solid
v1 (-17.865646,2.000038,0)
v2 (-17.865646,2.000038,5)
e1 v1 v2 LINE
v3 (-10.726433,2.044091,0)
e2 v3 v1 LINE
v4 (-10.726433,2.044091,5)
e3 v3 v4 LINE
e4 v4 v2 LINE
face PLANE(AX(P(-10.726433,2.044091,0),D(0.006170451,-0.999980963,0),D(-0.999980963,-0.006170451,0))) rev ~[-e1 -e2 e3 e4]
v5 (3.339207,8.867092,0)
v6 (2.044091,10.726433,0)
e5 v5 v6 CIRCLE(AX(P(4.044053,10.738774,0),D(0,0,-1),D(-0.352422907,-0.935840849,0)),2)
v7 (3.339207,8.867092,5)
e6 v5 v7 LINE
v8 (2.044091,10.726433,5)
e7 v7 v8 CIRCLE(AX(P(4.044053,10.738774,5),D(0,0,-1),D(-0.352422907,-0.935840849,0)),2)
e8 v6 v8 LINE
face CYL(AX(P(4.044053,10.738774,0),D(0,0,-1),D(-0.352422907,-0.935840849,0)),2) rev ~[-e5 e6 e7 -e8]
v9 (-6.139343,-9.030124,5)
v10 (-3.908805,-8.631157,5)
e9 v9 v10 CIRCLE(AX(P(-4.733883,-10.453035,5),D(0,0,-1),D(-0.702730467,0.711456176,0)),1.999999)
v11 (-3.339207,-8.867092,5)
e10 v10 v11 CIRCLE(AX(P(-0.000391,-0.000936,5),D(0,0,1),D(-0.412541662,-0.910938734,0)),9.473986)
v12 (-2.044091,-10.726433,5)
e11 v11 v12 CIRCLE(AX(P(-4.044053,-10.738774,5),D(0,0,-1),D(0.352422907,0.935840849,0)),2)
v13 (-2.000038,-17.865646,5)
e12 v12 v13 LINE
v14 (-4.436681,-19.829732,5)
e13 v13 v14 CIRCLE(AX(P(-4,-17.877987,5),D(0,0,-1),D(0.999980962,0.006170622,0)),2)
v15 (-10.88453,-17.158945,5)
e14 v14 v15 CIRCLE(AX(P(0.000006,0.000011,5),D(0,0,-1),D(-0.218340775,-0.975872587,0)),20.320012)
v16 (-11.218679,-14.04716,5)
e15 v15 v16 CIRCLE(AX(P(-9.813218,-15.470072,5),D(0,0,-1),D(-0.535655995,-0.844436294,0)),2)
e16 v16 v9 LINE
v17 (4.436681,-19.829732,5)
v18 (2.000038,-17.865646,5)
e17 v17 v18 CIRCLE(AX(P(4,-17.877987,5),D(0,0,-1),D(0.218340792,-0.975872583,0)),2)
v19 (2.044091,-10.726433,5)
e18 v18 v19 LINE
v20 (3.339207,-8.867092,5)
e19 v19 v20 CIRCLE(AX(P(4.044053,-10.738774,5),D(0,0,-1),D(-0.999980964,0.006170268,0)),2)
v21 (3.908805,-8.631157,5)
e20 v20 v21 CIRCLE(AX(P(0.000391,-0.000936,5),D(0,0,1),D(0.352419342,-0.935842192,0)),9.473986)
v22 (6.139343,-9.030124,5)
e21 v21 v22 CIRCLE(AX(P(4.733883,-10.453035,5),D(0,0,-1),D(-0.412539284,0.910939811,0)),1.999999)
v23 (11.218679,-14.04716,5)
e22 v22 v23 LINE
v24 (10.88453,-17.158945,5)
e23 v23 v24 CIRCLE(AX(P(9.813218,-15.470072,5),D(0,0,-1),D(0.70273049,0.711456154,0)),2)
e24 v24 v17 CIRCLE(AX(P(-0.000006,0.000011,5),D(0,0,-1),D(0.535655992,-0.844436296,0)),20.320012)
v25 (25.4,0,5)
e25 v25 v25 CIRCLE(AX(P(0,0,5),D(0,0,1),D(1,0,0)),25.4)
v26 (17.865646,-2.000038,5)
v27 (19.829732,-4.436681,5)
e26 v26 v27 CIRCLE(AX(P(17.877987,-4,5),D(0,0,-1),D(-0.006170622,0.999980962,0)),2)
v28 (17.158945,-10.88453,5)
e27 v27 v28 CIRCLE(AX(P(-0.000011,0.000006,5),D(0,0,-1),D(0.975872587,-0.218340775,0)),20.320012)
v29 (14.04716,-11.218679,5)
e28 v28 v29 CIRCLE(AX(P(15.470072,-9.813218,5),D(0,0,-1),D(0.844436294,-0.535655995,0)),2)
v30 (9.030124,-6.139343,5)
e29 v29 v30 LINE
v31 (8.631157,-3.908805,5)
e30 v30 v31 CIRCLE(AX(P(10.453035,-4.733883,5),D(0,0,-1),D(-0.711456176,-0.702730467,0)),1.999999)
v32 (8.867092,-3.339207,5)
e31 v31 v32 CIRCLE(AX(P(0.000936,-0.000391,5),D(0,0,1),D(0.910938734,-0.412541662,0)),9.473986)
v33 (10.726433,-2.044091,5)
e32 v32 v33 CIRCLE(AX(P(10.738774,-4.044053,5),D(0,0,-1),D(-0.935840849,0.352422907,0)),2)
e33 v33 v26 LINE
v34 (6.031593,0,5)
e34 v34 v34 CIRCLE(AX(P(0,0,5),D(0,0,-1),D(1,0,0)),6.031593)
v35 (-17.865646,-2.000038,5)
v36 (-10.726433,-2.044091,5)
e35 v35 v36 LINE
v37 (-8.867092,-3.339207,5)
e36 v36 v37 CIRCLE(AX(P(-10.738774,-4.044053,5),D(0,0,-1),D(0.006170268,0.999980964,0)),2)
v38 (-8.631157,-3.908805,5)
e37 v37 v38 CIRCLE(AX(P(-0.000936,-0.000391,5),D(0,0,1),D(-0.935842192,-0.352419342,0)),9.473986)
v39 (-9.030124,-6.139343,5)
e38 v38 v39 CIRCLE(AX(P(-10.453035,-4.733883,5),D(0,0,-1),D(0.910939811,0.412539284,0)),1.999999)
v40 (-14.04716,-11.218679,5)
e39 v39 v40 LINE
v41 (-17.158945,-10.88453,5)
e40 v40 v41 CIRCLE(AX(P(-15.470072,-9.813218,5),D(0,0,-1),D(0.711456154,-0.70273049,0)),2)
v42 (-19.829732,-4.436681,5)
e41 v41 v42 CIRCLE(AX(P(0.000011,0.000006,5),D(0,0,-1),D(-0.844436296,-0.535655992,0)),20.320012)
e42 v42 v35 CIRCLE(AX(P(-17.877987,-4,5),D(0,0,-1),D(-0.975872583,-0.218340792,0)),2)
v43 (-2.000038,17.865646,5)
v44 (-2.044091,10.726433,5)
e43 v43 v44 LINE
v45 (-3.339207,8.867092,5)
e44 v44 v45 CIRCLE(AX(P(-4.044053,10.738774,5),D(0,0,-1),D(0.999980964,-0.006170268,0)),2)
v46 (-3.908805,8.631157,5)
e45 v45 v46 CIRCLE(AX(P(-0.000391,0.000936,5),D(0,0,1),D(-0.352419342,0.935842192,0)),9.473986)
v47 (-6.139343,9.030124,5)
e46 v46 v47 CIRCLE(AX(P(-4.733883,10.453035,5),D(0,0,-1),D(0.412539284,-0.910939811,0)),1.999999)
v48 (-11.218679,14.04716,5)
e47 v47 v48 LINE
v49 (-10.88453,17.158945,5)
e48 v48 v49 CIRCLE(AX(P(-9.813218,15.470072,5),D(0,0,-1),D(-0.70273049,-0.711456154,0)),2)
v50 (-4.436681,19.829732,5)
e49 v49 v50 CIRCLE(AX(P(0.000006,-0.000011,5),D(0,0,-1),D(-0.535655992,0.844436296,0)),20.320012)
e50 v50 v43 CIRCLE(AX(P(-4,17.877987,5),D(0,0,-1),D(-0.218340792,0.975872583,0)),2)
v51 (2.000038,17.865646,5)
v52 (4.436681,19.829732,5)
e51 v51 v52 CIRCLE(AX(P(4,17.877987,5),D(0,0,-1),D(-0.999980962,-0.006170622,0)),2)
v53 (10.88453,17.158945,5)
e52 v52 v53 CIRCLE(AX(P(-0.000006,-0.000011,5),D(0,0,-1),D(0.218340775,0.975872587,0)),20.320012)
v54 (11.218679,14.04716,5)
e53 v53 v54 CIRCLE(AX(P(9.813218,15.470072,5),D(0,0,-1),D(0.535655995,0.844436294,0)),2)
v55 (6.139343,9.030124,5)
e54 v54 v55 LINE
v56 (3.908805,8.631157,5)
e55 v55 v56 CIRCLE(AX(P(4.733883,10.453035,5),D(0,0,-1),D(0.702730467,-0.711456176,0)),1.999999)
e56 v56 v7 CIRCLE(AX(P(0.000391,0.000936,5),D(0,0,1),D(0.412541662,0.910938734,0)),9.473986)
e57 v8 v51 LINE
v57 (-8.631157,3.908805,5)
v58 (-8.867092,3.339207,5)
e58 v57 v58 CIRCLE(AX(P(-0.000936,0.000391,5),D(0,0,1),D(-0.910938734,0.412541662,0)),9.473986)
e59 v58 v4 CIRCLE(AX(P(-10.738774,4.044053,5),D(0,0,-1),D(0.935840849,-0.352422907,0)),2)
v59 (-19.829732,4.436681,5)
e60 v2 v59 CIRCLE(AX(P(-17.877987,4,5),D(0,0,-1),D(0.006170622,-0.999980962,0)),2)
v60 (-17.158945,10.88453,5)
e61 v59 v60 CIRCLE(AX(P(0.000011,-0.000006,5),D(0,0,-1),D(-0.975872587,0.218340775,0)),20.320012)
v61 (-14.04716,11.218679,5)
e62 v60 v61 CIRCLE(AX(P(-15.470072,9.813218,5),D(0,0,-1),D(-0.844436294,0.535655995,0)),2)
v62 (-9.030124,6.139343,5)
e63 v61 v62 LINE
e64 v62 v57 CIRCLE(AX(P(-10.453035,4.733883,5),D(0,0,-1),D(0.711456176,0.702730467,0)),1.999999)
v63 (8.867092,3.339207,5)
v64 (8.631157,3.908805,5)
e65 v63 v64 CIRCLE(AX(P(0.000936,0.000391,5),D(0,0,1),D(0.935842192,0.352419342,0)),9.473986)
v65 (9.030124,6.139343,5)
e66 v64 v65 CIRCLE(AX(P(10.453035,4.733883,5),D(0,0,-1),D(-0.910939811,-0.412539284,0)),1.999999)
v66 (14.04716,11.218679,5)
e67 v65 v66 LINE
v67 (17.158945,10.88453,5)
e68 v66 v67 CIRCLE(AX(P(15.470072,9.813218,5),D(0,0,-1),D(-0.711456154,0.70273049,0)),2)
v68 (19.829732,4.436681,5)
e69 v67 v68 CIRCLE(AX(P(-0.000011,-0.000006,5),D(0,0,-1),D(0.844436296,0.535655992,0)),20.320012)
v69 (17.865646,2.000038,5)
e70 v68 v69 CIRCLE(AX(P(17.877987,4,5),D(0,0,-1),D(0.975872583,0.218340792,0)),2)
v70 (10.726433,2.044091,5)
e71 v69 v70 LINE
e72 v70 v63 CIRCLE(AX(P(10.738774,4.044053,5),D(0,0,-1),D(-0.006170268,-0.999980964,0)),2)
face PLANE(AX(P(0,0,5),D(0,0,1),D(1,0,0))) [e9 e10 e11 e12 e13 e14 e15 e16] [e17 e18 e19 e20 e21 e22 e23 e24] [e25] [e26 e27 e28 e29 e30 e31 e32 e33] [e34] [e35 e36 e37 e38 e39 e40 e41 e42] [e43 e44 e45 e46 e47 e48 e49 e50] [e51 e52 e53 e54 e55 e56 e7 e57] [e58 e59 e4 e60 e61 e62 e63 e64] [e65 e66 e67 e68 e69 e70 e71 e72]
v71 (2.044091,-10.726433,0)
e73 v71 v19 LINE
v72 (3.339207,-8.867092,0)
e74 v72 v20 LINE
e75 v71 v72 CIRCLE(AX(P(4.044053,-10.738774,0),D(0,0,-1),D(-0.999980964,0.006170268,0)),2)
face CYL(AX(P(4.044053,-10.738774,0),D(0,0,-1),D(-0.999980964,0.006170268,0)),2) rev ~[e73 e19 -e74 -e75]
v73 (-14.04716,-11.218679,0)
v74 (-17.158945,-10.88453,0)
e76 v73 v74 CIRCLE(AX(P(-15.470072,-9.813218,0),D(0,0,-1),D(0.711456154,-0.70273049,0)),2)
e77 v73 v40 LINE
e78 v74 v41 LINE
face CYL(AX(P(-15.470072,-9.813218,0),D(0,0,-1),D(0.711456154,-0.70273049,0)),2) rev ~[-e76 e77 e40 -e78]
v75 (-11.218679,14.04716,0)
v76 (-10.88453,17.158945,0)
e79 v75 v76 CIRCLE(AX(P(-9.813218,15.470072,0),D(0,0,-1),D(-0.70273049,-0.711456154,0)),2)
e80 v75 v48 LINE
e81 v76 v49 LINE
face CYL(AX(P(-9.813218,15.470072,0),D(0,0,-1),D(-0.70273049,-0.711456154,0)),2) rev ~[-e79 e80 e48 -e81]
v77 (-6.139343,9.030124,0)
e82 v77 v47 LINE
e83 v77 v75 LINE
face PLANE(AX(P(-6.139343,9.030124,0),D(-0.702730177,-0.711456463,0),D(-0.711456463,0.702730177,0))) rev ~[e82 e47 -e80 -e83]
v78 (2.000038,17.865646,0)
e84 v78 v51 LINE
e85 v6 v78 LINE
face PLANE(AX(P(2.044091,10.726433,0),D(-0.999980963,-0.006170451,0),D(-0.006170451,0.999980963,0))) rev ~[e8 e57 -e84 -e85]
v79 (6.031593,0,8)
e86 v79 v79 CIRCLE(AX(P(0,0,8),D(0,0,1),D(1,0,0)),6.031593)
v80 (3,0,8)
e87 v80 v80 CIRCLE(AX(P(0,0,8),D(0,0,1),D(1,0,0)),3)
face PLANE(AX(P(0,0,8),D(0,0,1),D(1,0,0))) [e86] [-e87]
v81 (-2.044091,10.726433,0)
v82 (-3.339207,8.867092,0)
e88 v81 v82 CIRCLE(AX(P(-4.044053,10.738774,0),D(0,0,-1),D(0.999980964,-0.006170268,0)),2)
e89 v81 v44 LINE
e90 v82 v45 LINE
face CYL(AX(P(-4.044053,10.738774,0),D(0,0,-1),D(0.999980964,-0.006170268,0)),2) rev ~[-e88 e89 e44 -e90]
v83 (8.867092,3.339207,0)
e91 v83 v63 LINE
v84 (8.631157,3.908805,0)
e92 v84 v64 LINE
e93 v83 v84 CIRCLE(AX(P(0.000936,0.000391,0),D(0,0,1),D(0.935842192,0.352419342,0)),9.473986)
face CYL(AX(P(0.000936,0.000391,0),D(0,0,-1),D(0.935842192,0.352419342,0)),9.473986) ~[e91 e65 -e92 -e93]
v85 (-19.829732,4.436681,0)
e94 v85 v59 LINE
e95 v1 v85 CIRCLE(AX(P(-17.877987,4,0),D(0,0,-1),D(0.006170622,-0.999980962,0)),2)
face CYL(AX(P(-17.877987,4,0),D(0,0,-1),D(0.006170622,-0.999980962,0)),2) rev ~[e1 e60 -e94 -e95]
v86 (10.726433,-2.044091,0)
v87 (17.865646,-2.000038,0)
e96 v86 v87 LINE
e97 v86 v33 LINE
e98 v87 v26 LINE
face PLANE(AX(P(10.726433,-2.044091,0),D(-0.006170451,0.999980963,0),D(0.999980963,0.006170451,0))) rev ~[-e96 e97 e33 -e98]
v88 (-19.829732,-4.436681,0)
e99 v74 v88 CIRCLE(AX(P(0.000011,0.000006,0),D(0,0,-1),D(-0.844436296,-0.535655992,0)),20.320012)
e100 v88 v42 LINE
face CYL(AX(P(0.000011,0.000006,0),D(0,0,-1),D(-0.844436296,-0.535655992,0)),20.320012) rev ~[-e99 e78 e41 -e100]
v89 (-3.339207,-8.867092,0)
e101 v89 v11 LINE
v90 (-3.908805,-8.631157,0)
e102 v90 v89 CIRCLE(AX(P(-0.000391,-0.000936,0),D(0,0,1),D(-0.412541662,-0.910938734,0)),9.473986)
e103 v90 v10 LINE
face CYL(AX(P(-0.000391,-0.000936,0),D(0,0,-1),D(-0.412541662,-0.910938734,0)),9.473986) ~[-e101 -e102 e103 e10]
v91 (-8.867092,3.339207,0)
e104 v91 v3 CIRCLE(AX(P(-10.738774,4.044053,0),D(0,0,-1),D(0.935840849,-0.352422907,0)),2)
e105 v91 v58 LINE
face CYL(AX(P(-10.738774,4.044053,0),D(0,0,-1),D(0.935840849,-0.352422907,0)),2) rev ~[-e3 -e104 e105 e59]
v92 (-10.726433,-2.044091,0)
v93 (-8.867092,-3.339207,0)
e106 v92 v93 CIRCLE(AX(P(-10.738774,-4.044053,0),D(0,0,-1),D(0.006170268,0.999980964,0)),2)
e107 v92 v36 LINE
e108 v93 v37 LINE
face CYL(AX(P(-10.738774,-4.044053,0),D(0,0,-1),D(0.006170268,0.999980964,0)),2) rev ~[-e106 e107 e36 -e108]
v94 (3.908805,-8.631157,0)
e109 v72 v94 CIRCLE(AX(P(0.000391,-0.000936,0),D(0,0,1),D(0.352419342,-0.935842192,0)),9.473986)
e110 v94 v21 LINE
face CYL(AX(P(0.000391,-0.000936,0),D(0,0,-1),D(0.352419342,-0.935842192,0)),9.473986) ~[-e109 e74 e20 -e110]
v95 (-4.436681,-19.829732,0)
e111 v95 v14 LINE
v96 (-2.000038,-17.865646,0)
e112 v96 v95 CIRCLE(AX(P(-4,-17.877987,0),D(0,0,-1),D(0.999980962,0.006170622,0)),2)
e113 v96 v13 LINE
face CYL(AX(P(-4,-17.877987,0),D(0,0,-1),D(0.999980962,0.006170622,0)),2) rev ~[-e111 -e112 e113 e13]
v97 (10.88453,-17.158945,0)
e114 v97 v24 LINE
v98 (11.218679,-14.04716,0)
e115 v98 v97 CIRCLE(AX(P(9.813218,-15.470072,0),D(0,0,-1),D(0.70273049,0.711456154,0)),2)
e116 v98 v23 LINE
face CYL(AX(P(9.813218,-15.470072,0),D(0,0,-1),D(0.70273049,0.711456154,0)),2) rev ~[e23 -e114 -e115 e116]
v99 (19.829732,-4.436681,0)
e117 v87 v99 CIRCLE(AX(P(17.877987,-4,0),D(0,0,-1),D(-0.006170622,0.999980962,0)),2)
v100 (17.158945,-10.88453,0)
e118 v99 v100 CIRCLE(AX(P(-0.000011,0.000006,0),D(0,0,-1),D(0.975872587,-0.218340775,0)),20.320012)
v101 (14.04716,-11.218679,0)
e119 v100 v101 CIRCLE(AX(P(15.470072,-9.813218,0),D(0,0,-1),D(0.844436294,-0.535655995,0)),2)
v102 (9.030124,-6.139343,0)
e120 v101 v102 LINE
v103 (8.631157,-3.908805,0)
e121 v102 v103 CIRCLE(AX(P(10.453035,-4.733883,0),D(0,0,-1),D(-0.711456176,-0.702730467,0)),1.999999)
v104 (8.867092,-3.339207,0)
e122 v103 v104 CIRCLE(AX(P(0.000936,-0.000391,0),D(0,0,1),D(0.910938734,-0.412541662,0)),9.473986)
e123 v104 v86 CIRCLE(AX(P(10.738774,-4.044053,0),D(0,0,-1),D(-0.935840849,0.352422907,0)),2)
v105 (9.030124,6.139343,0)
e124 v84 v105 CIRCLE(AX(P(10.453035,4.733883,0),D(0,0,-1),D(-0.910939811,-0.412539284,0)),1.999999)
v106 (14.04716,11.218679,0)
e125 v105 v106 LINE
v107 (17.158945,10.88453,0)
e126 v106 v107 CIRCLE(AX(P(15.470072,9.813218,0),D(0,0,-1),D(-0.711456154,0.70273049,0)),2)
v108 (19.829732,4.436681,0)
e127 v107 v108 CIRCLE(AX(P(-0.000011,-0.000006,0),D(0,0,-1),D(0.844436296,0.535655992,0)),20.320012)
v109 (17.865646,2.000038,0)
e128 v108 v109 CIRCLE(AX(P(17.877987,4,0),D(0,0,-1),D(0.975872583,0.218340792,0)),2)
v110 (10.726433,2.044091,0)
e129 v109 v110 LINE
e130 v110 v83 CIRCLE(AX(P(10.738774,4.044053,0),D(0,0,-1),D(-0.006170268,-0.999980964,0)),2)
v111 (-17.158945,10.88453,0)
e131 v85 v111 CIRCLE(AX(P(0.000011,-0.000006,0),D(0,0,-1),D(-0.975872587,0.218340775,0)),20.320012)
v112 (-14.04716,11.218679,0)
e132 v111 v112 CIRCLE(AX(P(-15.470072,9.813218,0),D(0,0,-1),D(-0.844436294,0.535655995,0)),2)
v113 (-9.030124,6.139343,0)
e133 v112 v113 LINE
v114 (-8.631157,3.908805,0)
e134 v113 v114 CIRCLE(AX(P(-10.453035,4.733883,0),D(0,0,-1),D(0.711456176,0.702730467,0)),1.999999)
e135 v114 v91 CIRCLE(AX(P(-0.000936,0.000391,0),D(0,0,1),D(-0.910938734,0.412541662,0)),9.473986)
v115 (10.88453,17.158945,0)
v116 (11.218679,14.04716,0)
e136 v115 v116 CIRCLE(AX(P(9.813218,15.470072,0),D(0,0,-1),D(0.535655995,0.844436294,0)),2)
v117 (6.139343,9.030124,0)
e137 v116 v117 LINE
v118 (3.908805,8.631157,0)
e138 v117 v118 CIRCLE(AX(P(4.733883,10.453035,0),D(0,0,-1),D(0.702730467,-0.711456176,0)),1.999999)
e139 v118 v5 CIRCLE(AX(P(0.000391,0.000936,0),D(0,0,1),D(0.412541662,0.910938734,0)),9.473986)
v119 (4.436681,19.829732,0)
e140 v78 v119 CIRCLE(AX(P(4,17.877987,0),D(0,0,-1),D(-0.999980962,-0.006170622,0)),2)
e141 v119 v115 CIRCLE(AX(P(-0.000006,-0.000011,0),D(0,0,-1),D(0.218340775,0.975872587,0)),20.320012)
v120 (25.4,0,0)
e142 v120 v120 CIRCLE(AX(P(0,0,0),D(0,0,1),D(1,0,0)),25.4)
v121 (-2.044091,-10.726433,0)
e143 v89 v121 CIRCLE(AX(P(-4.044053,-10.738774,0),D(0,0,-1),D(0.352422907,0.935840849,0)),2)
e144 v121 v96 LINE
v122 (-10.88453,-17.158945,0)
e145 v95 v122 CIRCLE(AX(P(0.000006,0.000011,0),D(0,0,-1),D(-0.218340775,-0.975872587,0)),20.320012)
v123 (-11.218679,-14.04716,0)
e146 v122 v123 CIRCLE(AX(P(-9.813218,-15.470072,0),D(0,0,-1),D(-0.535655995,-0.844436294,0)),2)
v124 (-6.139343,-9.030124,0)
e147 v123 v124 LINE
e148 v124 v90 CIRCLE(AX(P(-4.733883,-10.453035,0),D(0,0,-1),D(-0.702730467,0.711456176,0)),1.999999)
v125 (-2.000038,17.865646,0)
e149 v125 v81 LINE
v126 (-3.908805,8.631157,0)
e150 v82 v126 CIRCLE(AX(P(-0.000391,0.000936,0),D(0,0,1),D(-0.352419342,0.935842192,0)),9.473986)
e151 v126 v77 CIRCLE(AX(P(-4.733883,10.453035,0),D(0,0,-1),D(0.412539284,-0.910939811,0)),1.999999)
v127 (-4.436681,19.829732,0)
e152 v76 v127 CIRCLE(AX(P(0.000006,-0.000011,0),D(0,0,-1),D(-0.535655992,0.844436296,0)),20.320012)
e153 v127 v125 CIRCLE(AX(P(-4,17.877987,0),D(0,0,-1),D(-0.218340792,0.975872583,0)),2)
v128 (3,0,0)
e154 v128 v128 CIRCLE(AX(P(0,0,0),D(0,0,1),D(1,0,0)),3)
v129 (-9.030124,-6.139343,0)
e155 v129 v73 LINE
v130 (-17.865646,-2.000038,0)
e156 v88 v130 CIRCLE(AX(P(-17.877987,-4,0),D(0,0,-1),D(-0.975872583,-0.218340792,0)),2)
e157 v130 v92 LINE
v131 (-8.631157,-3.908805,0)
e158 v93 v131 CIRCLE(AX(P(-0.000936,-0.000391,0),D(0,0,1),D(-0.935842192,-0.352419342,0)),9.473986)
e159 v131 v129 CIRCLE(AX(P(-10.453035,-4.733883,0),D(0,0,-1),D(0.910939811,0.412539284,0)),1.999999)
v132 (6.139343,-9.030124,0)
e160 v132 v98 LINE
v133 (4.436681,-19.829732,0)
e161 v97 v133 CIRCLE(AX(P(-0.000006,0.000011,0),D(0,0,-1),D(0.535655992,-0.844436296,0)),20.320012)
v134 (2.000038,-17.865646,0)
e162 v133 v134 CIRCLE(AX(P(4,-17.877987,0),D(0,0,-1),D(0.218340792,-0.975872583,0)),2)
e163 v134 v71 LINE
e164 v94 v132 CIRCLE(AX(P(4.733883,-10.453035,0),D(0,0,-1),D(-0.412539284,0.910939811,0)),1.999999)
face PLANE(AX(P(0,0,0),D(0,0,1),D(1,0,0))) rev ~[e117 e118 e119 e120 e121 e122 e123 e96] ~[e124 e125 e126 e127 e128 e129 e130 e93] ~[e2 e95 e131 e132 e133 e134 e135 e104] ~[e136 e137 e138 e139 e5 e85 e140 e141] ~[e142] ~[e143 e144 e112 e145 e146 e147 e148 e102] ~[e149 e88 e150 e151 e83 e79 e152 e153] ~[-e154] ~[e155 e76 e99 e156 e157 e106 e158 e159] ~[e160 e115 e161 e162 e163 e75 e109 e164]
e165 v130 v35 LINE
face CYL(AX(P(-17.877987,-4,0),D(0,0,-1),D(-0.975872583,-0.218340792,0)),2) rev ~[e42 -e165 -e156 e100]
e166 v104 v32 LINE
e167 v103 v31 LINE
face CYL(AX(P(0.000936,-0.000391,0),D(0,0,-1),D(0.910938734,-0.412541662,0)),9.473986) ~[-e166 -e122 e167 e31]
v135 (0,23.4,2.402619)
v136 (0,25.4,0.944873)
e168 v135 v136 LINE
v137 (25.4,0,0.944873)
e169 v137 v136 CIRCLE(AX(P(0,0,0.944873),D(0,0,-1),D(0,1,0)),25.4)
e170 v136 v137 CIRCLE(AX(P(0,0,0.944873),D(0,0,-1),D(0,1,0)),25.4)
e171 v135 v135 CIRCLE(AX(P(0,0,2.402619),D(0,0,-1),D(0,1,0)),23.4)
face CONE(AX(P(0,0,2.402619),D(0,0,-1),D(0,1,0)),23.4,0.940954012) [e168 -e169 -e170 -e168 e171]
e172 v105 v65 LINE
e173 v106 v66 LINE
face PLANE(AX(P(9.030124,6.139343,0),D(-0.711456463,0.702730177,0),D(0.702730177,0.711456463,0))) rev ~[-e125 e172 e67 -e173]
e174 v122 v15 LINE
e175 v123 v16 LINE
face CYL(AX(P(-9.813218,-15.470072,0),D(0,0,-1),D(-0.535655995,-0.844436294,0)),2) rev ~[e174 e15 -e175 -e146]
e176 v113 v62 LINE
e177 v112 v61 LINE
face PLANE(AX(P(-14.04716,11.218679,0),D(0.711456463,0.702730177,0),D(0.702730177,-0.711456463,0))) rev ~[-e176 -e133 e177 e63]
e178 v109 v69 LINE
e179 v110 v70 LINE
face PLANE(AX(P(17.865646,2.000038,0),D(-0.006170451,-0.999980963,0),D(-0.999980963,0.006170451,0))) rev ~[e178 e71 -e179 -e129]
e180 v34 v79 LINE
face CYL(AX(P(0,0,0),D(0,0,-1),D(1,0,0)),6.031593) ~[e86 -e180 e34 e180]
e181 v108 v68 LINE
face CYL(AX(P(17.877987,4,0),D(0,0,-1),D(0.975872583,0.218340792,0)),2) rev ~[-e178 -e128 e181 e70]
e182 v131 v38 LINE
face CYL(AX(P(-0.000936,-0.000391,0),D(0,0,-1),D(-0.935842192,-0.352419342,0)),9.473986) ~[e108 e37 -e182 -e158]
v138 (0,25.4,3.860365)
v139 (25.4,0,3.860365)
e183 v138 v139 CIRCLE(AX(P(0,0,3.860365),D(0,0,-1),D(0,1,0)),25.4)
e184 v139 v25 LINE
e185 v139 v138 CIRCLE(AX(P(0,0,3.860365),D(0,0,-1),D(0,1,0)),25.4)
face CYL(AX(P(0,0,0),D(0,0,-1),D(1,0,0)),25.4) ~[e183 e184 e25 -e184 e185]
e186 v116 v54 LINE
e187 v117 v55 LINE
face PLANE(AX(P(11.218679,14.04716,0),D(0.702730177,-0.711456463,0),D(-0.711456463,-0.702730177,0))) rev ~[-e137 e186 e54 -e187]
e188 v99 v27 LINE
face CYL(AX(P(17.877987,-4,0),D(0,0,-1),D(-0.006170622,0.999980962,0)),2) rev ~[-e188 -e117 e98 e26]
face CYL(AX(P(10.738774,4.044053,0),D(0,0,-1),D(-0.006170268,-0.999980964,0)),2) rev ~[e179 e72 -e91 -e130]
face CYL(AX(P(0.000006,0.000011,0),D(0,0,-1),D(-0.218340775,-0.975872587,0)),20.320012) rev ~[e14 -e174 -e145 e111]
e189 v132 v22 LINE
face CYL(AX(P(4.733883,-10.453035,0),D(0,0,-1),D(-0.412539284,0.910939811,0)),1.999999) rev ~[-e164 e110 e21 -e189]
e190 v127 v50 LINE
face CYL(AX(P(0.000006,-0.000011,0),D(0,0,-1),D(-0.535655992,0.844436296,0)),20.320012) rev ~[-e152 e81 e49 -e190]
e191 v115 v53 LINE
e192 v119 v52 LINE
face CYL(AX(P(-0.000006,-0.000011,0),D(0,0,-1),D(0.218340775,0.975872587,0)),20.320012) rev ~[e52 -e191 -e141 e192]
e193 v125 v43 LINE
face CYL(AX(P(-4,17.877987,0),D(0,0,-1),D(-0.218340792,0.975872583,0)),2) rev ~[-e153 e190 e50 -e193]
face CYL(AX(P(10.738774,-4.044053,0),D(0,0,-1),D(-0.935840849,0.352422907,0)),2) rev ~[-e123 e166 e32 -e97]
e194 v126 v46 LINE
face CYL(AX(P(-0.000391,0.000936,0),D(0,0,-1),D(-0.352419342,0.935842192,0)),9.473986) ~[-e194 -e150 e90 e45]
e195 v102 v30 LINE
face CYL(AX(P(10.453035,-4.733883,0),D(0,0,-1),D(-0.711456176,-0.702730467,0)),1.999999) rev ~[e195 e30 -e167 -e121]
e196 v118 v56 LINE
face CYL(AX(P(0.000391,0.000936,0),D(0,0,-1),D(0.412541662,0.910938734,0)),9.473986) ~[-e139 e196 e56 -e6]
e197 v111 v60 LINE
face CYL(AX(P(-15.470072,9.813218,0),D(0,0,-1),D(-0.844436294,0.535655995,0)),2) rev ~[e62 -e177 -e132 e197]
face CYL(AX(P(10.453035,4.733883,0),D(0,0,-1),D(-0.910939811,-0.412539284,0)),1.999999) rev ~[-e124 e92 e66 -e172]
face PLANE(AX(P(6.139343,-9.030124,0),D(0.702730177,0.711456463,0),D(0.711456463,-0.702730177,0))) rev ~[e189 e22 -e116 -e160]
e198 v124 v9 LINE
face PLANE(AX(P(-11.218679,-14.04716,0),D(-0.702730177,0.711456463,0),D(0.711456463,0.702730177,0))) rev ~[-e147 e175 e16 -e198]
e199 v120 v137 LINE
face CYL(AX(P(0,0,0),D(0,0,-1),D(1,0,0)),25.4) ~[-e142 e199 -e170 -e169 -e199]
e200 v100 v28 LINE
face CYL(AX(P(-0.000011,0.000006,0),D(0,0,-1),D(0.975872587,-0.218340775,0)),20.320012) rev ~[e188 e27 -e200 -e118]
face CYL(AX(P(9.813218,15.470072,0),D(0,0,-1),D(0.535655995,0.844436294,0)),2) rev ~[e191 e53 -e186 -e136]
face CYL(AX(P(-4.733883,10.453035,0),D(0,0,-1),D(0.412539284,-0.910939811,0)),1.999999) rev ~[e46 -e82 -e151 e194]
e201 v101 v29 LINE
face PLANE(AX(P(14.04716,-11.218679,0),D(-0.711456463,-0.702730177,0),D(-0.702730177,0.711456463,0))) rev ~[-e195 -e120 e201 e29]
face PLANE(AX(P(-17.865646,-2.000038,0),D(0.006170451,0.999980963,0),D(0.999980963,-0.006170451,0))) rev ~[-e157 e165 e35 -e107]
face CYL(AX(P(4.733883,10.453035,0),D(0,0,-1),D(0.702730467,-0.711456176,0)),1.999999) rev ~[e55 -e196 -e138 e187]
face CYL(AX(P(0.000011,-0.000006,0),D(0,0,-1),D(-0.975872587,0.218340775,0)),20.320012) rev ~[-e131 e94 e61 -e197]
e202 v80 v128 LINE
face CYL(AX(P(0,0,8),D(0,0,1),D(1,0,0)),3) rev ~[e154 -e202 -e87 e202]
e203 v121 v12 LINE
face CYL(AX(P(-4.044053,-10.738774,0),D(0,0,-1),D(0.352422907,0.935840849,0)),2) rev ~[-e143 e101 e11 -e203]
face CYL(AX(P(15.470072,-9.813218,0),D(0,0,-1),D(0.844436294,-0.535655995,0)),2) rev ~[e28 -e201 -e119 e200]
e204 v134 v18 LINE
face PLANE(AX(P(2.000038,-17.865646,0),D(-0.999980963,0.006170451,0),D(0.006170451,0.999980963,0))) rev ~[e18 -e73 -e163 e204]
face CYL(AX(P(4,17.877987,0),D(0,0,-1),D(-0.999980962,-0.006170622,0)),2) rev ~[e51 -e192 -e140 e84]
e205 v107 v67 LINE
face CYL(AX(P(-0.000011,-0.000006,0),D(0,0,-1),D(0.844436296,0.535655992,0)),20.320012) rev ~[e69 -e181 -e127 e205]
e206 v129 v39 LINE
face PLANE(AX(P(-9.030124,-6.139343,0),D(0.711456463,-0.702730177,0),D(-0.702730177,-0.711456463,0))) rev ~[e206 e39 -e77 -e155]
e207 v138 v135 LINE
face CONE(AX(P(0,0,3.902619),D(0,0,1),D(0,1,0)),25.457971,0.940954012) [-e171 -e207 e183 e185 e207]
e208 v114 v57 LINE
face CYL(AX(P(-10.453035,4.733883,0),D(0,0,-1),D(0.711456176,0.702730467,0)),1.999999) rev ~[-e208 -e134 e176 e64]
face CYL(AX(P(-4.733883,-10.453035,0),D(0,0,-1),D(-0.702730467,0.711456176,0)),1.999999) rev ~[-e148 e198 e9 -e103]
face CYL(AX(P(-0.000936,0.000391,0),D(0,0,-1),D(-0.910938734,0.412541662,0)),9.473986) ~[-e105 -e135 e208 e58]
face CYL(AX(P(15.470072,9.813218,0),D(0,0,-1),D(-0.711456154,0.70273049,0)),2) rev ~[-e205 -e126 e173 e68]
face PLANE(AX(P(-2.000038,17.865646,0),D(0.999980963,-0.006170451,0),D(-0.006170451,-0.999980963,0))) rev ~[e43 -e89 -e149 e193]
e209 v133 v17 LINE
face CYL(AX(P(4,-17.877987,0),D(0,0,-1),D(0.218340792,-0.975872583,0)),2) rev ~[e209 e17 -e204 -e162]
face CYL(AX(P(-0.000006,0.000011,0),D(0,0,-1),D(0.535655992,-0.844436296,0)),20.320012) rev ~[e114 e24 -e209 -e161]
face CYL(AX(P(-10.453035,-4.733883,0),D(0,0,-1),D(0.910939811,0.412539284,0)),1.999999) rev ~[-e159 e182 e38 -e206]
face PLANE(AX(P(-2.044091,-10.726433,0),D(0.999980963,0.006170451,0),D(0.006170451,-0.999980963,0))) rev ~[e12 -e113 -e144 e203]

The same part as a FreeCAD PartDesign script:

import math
import FreeCAD as App
import Part
import Sketcher

V = App.Vector
Q = App.Units.Quantity


def add_polygon(sketch, points):
    """Adds a closed chain of lines whose ends are joined by coincident constraints."""
    first, n = sketch.GeometryCount, len(points)
    for a, b in zip(points, points[1:] + points[:1]):
        sketch.addGeometry(Part.LineSegment(App.Vector(*a, 0), App.Vector(*b, 0)), False)
    for i in range(n):
        sketch.addConstraint(Sketcher.Constraint("Coincident", first + i, 2, first + (i + 1) % n, 1))

doc = App.newDocument("Part")
body = doc.addObject("PartDesign::Body", "Body")

# Sketch on XY plane
sketch1 = doc.addObject("Sketcher::SketchObject", "Sketch")
body.addObject(sketch1)
sketch1.AttachmentSupport = (doc.XY_Plane, [""])
sketch1.MapMode = "FlatFace"
sketch1.addGeometry([
    Part.Circle(V(0, 0, 0), V(0, 0, 1), 25.4),  # 0
    Part.ArcOfCircle(Part.Circle(V(0.000006, 0.000011, 0), V(0, 0, 1), 20.320012), math.radians(-122.38841), math.radians(-102.611597)),  # 1
    Part.ArcOfCircle(Part.Circle(V(-9.813218, -15.470072, 0), V(0, 0, 1), 2), math.radians(134.646484), math.radians(237.61159)),  # 2
    Part.LineSegment(V(-11.218679, -14.04716, 0), V(-6.139343, -9.030124, 0)),  # 3
    Part.ArcOfCircle(Part.Circle(V(-4.733883, -10.453035, 0), V(0, 0, 1), 1.999999), math.radians(65.635551), math.radians(134.646482)),  # 4
    Part.ArcOfCircle(Part.Circle(V(-0.000391, -0.000936, 0), V(0, 0, 1), 9.473986), math.radians(-114.364598), math.radians(-110.635364)),  # 5
    Part.ArcOfCircle(Part.Circle(V(-4.044053, -10.738774, 0), V(0, 0, 1), 2), math.radians(0.353533), math.radians(69.364417)),  # 6
    Part.LineSegment(V(-2.044091, -10.726433, 0), V(-2.000038, -17.865646, 0)),  # 7
    Part.ArcOfCircle(Part.Circle(V(-4, -17.877987, 0), V(0, 0, 1), 2), math.radians(-102.611598), math.radians(0.353553)),  # 8
    Part.ArcOfCircle(Part.Circle(V(0.000011, 0.000006, 0), V(0, 0, 1), 20.320012), math.radians(-167.388403), math.radians(-147.61159)),  # 9
    Part.ArcOfCircle(Part.Circle(V(-17.877987, -4, 0), V(0, 0, 1), 2), math.radians(89.646447), math.radians(192.611598)),  # 10
    Part.LineSegment(V(-17.865646, -2.000038, 0), V(-10.726433, -2.044091, 0)),  # 11
    Part.ArcOfCircle(Part.Circle(V(-10.738774, -4.044053, 0), V(0, 0, 1), 2), math.radians(20.635583), math.radians(89.646467)),  # 12
    Part.ArcOfCircle(Part.Circle(V(-0.000936, -0.000391, 0), V(0, 0, 1), 9.473986), math.radians(-159.364636), math.radians(-155.635402)),  # 13
    Part.ArcOfCircle(Part.Circle(V(-10.453035, -4.733883, 0), V(0, 0, 1), 1.999999), math.radians(-44.646482), math.radians(24.364449)),  # 14
    Part.LineSegment(V(-9.030124, -6.139343, 0), V(-14.04716, -11.218679, 0)),  # 15
    Part.ArcOfCircle(Part.Circle(V(-15.470072, -9.813218, 0), V(0, 0, 1), 2), math.radians(-147.61159), math.radians(-44.646484)),  # 16
    Part.ArcOfCircle(Part.Circle(V(-0.000006, 0.000011, 0), V(0, 0, 1), 20.320012), math.radians(-77.388403), math.radians(-57.61159)),  # 17
    Part.ArcOfCircle(Part.Circle(V(4, -17.877987, 0), V(0, 0, 1), 2), math.radians(179.646447), math.radians(282.611598)),  # 18
    Part.LineSegment(V(2.000038, -17.865646, 0), V(2.044091, -10.726433, 0)),  # 19
    Part.ArcOfCircle(Part.Circle(V(4.044053, -10.738774, 0), V(0, 0, 1), 2), math.radians(110.635583), math.radians(179.646467)),  # 20
    Part.ArcOfCircle(Part.Circle(V(0.000391, -0.000936, 0), V(0, 0, 1), 9.473986), math.radians(-69.364636), math.radians(-65.635402)),  # 21
    Part.ArcOfCircle(Part.Circle(V(4.733883, -10.453035, 0), V(0, 0, 1), 1.999999), math.radians(45.353518), math.radians(114.364449)),  # 22
    Part.LineSegment(V(6.139343, -9.030124, 0), V(11.218679, -14.04716, 0)),  # 23
    Part.ArcOfCircle(Part.Circle(V(9.813218, -15.470072, 0), V(0, 0, 1), 2), math.radians(-57.61159), math.radians(45.353516)),  # 24
    Part.ArcOfCircle(Part.Circle(V(-0.000011, 0.000006, 0), V(0, 0, 1), 20.320012), math.radians(-32.38841), math.radians(-12.611597)),  # 25
    Part.ArcOfCircle(Part.Circle(V(15.470072, -9.813218, 0), V(0, 0, 1), 2), math.radians(-135.353516), math.radians(-32.38841)),  # 26
    Part.LineSegment(V(14.04716, -11.218679, 0), V(9.030124, -6.139343, 0)),  # 27
    Part.ArcOfCircle(Part.Circle(V(10.453035, -4.733883, 0), V(0, 0, 1), 1.999999), math.radians(155.635551), math.radians(224.646482)),  # 28
    Part.ArcOfCircle(Part.Circle(V(0.000936, -0.000391, 0), V(0, 0, 1), 9.473986), math.radians(-24.364598), math.radians(-20.635364)),  # 29
    Part.ArcOfCircle(Part.Circle(V(10.738774, -4.044053, 0), V(0, 0, 1), 2), math.radians(90.353533), math.radians(159.364417)),  # 30
    Part.LineSegment(V(10.726433, -2.044091, 0), V(17.865646, -2.000038, 0)),  # 31
    Part.ArcOfCircle(Part.Circle(V(17.877987, -4, 0), V(0, 0, 1), 2), math.radians(-12.611598), math.radians(90.353553)),  # 32
    Part.ArcOfCircle(Part.Circle(V(0.000011, -0.000006, 0), V(0, 0, 1), 20.320012), math.radians(147.61159), math.radians(167.388403)),  # 33
    Part.ArcOfCircle(Part.Circle(V(-15.470072, 9.813218, 0), V(0, 0, 1), 2), math.radians(44.646484), math.radians(147.61159)),  # 34
    Part.LineSegment(V(-14.04716, 11.218679, 0), V(-9.030124, 6.139343, 0)),  # 35
    Part.ArcOfCircle(Part.Circle(V(-10.453035, 4.733883, 0), V(0, 0, 1), 1.999999), math.radians(-24.364449), math.radians(44.646482)),  # 36
    Part.ArcOfCircle(Part.Circle(V(-0.000936, 0.000391, 0), V(0, 0, 1), 9.473986), math.radians(155.635402), math.radians(159.364636)),  # 37
    Part.ArcOfCircle(Part.Circle(V(-10.738774, 4.044053, 0), V(0, 0, 1), 2), math.radians(-89.646467), math.radians(-20.635583)),  # 38
    Part.LineSegment(V(-10.726433, 2.044091, 0), V(-17.865646, 2.000038, 0)),  # 39
    Part.ArcOfCircle(Part.Circle(V(-17.877987, 4, 0), V(0, 0, 1), 2), math.radians(167.388402), math.radians(270.353553)),  # 40
    Part.ArcOfCircle(Part.Circle(V(-9.813218, 15.470072, 0), V(0, 0, 1), 2), math.radians(122.38841), math.radians(225.353516)),  # 41
    Part.ArcOfCircle(Part.Circle(V(0.000006, -0.000011, 0), V(0, 0, 1), 20.320012), math.radians(102.611597), math.radians(122.38841)),  # 42
    Part.ArcOfCircle(Part.Circle(V(-4, 17.877987, 0), V(0, 0, 1), 2), math.radians(-0.353553), math.radians(102.611598)),  # 43
    Part.LineSegment(V(-2.000038, 17.865646, 0), V(-2.044091, 10.726433, 0)),  # 44
    Part.ArcOfCircle(Part.Circle(V(-4.044053, 10.738774, 0), V(0, 0, 1), 2), math.radians(-69.364417), math.radians(-0.353533)),  # 45
    Part.ArcOfCircle(Part.Circle(V(-0.000391, 0.000936, 0), V(0, 0, 1), 9.473986), math.radians(110.635364), math.radians(114.364598)),  # 46
    Part.ArcOfCircle(Part.Circle(V(-4.733883, 10.453035, 0), V(0, 0, 1), 1.999999), math.radians(-134.646482), math.radians(-65.635551)),  # 47
    Part.LineSegment(V(-6.139343, 9.030124, 0), V(-11.218679, 14.04716, 0)),  # 48
    Part.Circle(V(0, 0, 0), V(0, 0, 1), 3.125),  # 49
    Part.ArcOfCircle(Part.Circle(V(-0.000011, -0.000006, 0), V(0, 0, 1), 20.320012), math.radians(12.611597), math.radians(32.38841)),  # 50
    Part.ArcOfCircle(Part.Circle(V(17.877987, 4, 0), V(0, 0, 1), 2), math.radians(-90.353553), math.radians(12.611598)),  # 51
    Part.LineSegment(V(17.865646, 2.000038, 0), V(10.726433, 2.044091, 0)),  # 52
    Part.ArcOfCircle(Part.Circle(V(10.738774, 4.044053, 0), V(0, 0, 1), 2), math.radians(-159.364417), math.radians(-90.353533)),  # 53
    Part.ArcOfCircle(Part.Circle(V(0.000936, 0.000391, 0), V(0, 0, 1), 9.473986), math.radians(20.635364), math.radians(24.364598)),  # 54
    Part.ArcOfCircle(Part.Circle(V(10.453035, 4.733883, 0), V(0, 0, 1), 1.999999), math.radians(135.353518), math.radians(204.364449)),  # 55
    Part.LineSegment(V(9.030124, 6.139343, 0), V(14.04716, 11.218679, 0)),  # 56
    Part.ArcOfCircle(Part.Circle(V(15.470072, 9.813218, 0), V(0, 0, 1), 2), math.radians(32.38841), math.radians(135.353516)),  # 57
    Part.ArcOfCircle(Part.Circle(V(4.044053, 10.738774, 0), V(0, 0, 1), 2), math.radians(-179.646467), math.radians(-110.635583)),  # 58
    Part.LineSegment(V(2.044091, 10.726433, 0), V(2.000038, 17.865646, 0)),  # 59
    Part.ArcOfCircle(Part.Circle(V(4, 17.877987, 0), V(0, 0, 1), 2), math.radians(77.388402), math.radians(180.353553)),  # 60
    Part.ArcOfCircle(Part.Circle(V(-0.000006, -0.000011, 0), V(0, 0, 1), 20.320012), math.radians(57.61159), math.radians(77.388403)),  # 61
    Part.ArcOfCircle(Part.Circle(V(9.813218, 15.470072, 0), V(0, 0, 1), 2), math.radians(-45.353516), math.radians(57.61159)),  # 62
    Part.LineSegment(V(11.218679, 14.04716, 0), V(6.139343, 9.030124, 0)),  # 63
    Part.ArcOfCircle(Part.Circle(V(4.733883, 10.453035, 0), V(0, 0, 1), 1.999999), math.radians(-114.364449), math.radians(-45.353518)),  # 64
    Part.ArcOfCircle(Part.Circle(V(0.000391, 0.000936, 0), V(0, 0, 1), 9.473986), math.radians(65.635402), math.radians(69.364636)),  # 65
], False)
sketch1.addConstraint([
    Sketcher.Constraint("Coincident", 1, 1, 2, 2),
    Sketcher.Constraint("Coincident", 2, 1, 3, 1),
    Sketcher.Constraint("Coincident", 3, 2, 4, 2),
    Sketcher.Constraint("Coincident", 4, 1, 5, 1),
    Sketcher.Constraint("Coincident", 5, 2, 6, 2),
    Sketcher.Constraint("Coincident", 6, 1, 7, 1),
    Sketcher.Constraint("Coincident", 7, 2, 8, 2),
    Sketcher.Constraint("Coincident", 8, 1, 1, 2),
    Sketcher.Constraint("Coincident", 9, 1, 10, 2),
    Sketcher.Constraint("Coincident", 10, 1, 11, 1),
    Sketcher.Constraint("Coincident", 11, 2, 12, 2),
    Sketcher.Constraint("Coincident", 12, 1, 13, 1),
    Sketcher.Constraint("Coincident", 13, 2, 14, 2),
    Sketcher.Constraint("Coincident", 14, 1, 15, 1),
    Sketcher.Constraint("Coincident", 15, 2, 16, 2),
    Sketcher.Constraint("Coincident", 16, 1, 9, 2),
    Sketcher.Constraint("Coincident", 17, 1, 18, 2),
    Sketcher.Constraint("Coincident", 18, 1, 19, 1),
    Sketcher.Constraint("Coincident", 19, 2, 20, 2),
    Sketcher.Constraint("Coincident", 20, 1, 21, 1),
    Sketcher.Constraint("Coincident", 21, 2, 22, 2),
    Sketcher.Constraint("Coincident", 22, 1, 23, 1),
    Sketcher.Constraint("Coincident", 23, 2, 24, 2),
    Sketcher.Constraint("Coincident", 24, 1, 17, 2),
    Sketcher.Constraint("Coincident", 25, 1, 26, 2),
    Sketcher.Constraint("Coincident", 26, 1, 27, 1),
    Sketcher.Constraint("Coincident", 27, 2, 28, 2),
    Sketcher.Constraint("Coincident", 28, 1, 29, 1),
    Sketcher.Constraint("Coincident", 29, 2, 30, 2),
    Sketcher.Constraint("Coincident", 30, 1, 31, 1),
    Sketcher.Constraint("Coincident", 31, 2, 32, 2),
    Sketcher.Constraint("Coincident", 32, 1, 25, 2),
    Sketcher.Constraint("Coincident", 33, 1, 34, 2),
    Sketcher.Constraint("Coincident", 34, 1, 35, 1),
    Sketcher.Constraint("Coincident", 35, 2, 36, 2),
    Sketcher.Constraint("Coincident", 36, 1, 37, 1),
    Sketcher.Constraint("Coincident", 37, 2, 38, 2),
    Sketcher.Constraint("Coincident", 38, 1, 39, 1),
    Sketcher.Constraint("Coincident", 39, 2, 40, 2),
    Sketcher.Constraint("Coincident", 40, 1, 33, 2),
    Sketcher.Constraint("Coincident", 41, 1, 42, 2),
    Sketcher.Constraint("Coincident", 42, 1, 43, 2),
    Sketcher.Constraint("Coincident", 43, 1, 44, 1),
    Sketcher.Constraint("Coincident", 44, 2, 45, 2),
    Sketcher.Constraint("Coincident", 45, 1, 46, 1),
    Sketcher.Constraint("Coincident", 46, 2, 47, 2),
    Sketcher.Constraint("Coincident", 47, 1, 48, 1),
    Sketcher.Constraint("Coincident", 48, 2, 41, 2),
    Sketcher.Constraint("Coincident", 50, 1, 51, 2),
    Sketcher.Constraint("Coincident", 51, 1, 52, 1),
    Sketcher.Constraint("Coincident", 52, 2, 53, 2),
    Sketcher.Constraint("Coincident", 53, 1, 54, 1),
    Sketcher.Constraint("Coincident", 54, 2, 55, 2),
    Sketcher.Constraint("Coincident", 55, 1, 56, 1),
    Sketcher.Constraint("Coincident", 56, 2, 57, 2),
    Sketcher.Constraint("Coincident", 57, 1, 50, 2),
    Sketcher.Constraint("Coincident", 58, 1, 59, 1),
    Sketcher.Constraint("Coincident", 59, 2, 60, 2),
    Sketcher.Constraint("Coincident", 60, 1, 61, 2),
    Sketcher.Constraint("Coincident", 61, 1, 62, 2),
    Sketcher.Constraint("Coincident", 62, 1, 63, 1),
    Sketcher.Constraint("Coincident", 63, 2, 64, 2),
    Sketcher.Constraint("Coincident", 64, 1, 65, 1),
    Sketcher.Constraint("Coincident", 65, 2, 58, 2),
    Sketcher.Constraint("Coincident", 0, 3, -1, 1),
    Sketcher.Constraint("Coincident", 49, 3, -1, 1),
    Sketcher.Constraint("Coincident", 9, 3, 1, 3),
    Sketcher.Constraint("Coincident", 25, 3, 17, 3),
    Sketcher.Constraint("Coincident", 42, 3, 33, 3),
    Sketcher.Constraint("Coincident", 61, 3, 50, 3),
    Sketcher.Constraint("Radius", 2, Q("2 mm")),
    Sketcher.Constraint("Radius", 4, Q("1.999999 mm")),
    Sketcher.Constraint("Radius", 6, Q("2 mm")),
    Sketcher.Constraint("Radius", 8, Q("2 mm")),
    Sketcher.Constraint("Radius", 10, Q("2 mm")),
    Sketcher.Constraint("Radius", 12, Q("2 mm")),
    Sketcher.Constraint("Radius", 14, Q("1.999999 mm")),
    Sketcher.Constraint("Radius", 16, Q("2 mm")),
    Sketcher.Constraint("Radius", 18, Q("2 mm")),
    Sketcher.Constraint("Radius", 20, Q("2 mm")),
    Sketcher.Constraint("Radius", 22, Q("1.999999 mm")),
    Sketcher.Constraint("Radius", 24, Q("2 mm")),
    Sketcher.Constraint("Radius", 26, Q("2 mm")),
    Sketcher.Constraint("Radius", 28, Q("1.999999 mm")),
    Sketcher.Constraint("Radius", 30, Q("2 mm")),
    Sketcher.Constraint("Radius", 32, Q("2 mm")),
    Sketcher.Constraint("Radius", 34, Q("2 mm")),
    Sketcher.Constraint("Radius", 36, Q("1.999999 mm")),
    Sketcher.Constraint("Radius", 38, Q("2 mm")),
    Sketcher.Constraint("Radius", 40, Q("2 mm")),
    Sketcher.Constraint("Radius", 41, Q("2 mm")),
    Sketcher.Constraint("Radius", 43, Q("2 mm")),
    Sketcher.Constraint("Radius", 45, Q("2 mm")),
    Sketcher.Constraint("Radius", 47, Q("1.999999 mm")),
    Sketcher.Constraint("Radius", 51, Q("2 mm")),
    Sketcher.Constraint("Radius", 53, Q("2 mm")),
    Sketcher.Constraint("Radius", 55, Q("1.999999 mm")),
    Sketcher.Constraint("Radius", 57, Q("2 mm")),
    Sketcher.Constraint("Radius", 58, Q("2 mm")),
    Sketcher.Constraint("Radius", 60, Q("2 mm")),
    Sketcher.Constraint("Radius", 62, Q("2 mm")),
    Sketcher.Constraint("Radius", 64, Q("1.999999 mm")),
    Sketcher.Constraint("Diameter", 0, Q("50.8 mm")),
    Sketcher.Constraint("Diameter", 49, Q("6.25 mm")),
    Sketcher.Constraint("DistanceX", 8, 3, -1, 1, Q("4 mm")),
    Sketcher.Constraint("DistanceY", 10, 3, -1, 1, Q("4 mm")),
    Sketcher.Constraint("DistanceX", -1, 1, 18, 3, Q("4 mm")),
    Sketcher.Constraint("DistanceY", 32, 3, -1, 1, Q("4 mm")),
    Sketcher.Constraint("DistanceY", -1, 1, 40, 3, Q("4 mm")),
    Sketcher.Constraint("DistanceX", 43, 3, -1, 1, Q("4 mm")),
    Sketcher.Constraint("DistanceY", -1, 1, 51, 3, Q("4 mm")),
    Sketcher.Constraint("DistanceX", -1, 1, 60, 3, Q("4 mm")),
    Sketcher.Constraint("Radius", 1, Q("20.320012 mm")),
    Sketcher.Constraint("Radius", 9, Q("20.320012 mm")),
    Sketcher.Constraint("Radius", 17, Q("20.320012 mm")),
    Sketcher.Constraint("Radius", 25, Q("20.320012 mm")),
    Sketcher.Constraint("Radius", 33, Q("20.320012 mm")),
    Sketcher.Constraint("Radius", 42, Q("20.320012 mm")),
    Sketcher.Constraint("Radius", 50, Q("20.320012 mm")),
    Sketcher.Constraint("Radius", 61, Q("20.320012 mm")),
    Sketcher.Constraint("Radius", 5, Q("9.473986 mm")),
    Sketcher.Constraint("Radius", 13, Q("9.473986 mm")),
    Sketcher.Constraint("Radius", 21, Q("9.473986 mm")),
    Sketcher.Constraint("Radius", 29, Q("9.473986 mm")),
    Sketcher.Constraint("Radius", 37, Q("9.473986 mm")),
    Sketcher.Constraint("Radius", 46, Q("9.473986 mm")),
    Sketcher.Constraint("Radius", 54, Q("9.473986 mm")),
    Sketcher.Constraint("Radius", 65, Q("9.473986 mm")),
    Sketcher.Constraint("Distance", 3, Q("7.139349 mm")),
    Sketcher.Constraint("Distance", 7, Q("7.139349 mm")),
    Sketcher.Constraint("Distance", 11, Q("7.139349 mm")),
    Sketcher.Constraint("Distance", 15, Q("7.139349 mm")),
    Sketcher.Constraint("Distance", 19, Q("7.139349 mm")),
    Sketcher.Constraint("Distance", 23, Q("7.139349 mm")),
    Sketcher.Constraint("Distance", 27, Q("7.139349 mm")),
    Sketcher.Constraint("Distance", 31, Q("7.139349 mm")),
    Sketcher.Constraint("Distance", 35, Q("7.139349 mm")),
    Sketcher.Constraint("Distance", 39, Q("7.139349 mm")),
    Sketcher.Constraint("Distance", 44, Q("7.139349 mm")),
    Sketcher.Constraint("Distance", 48, Q("7.139349 mm")),
    Sketcher.Constraint("Distance", 52, Q("7.139349 mm")),
    Sketcher.Constraint("Distance", 56, Q("7.139349 mm")),
    Sketcher.Constraint("Distance", 59, Q("7.139349 mm")),
    Sketcher.Constraint("Distance", 63, Q("7.139349 mm")),
    Sketcher.Constraint("DistanceX", 5, 3, -1, 1, Q("0.000391 mm")),
    Sketcher.Constraint("DistanceY", 13, 3, -1, 1, Q("0.000391 mm")),
    Sketcher.Constraint("DistanceX", -1, 1, 21, 3, Q("0.000391 mm")),
    Sketcher.Constraint("DistanceY", 29, 3, -1, 1, Q("0.000391 mm")),
    Sketcher.Constraint("DistanceY", -1, 1, 37, 3, Q("0.000391 mm")),
    Sketcher.Constraint("DistanceX", 46, 3, -1, 1, Q("0.000391 mm")),
    Sketcher.Constraint("DistanceY", -1, 1, 54, 3, Q("0.000391 mm")),
    Sketcher.Constraint("DistanceX", -1, 1, 65, 3, Q("0.000391 mm")),
    Sketcher.Constraint("DistanceX", 1, 1, -1, 1, Q("10.88453 mm")),
    Sketcher.Constraint("DistanceX", 2, 1, -1, 1, Q("11.218679 mm")),
    Sketcher.Constraint("DistanceY", 2, 1, -1, 1, Q("14.04716 mm")),
    Sketcher.Constraint("DistanceX", 6, 1, -1, 1, Q("2.044091 mm")),
    Sketcher.Constraint("DistanceX", 7, 2, -1, 1, Q("2.000038 mm")),
    Sketcher.Constraint("DistanceX", 8, 1, -1, 1, Q("4.436681 mm")),
    Sketcher.Constraint("DistanceX", 9, 1, -1, 1, Q("19.829732 mm")),
    Sketcher.Constraint("DistanceY", 9, 1, -1, 1, Q("4.436681 mm")),
    Sketcher.Constraint("DistanceY", 11, 2, -1, 1, Q("2.044091 mm")),
    Sketcher.Constraint("DistanceX", 12, 1, -1, 1, Q("8.867092 mm")),
    Sketcher.Constraint("DistanceX", 15, 2, -1, 1, Q("14.04716 mm")),
    Sketcher.Constraint("DistanceY", 15, 2, -1, 1, Q("11.218679 mm")),
    Sketcher.Constraint("DistanceY", 16, 1, -1, 1, Q("10.88453 mm")),
    Sketcher.Constraint("DistanceX", -1, 1, 17, 1, Q("4.436681 mm")),
    Sketcher.Constraint("DistanceY", 17, 1, -1, 1, Q("19.829732 mm")),
    Sketcher.Constraint("DistanceX", -1, 1, 19, 2, Q("2.044091 mm")),
    Sketcher.Constraint("DistanceY", 20, 1, -1, 1, Q("8.867092 mm")),
    Sketcher.Constraint("DistanceX", -1, 1, 23, 2, Q("11.218679 mm")),
    Sketcher.Constraint("DistanceY", 23, 2, -1, 1, Q("14.04716 mm")),
    Sketcher.Constraint("DistanceX", -1, 1, 24, 1, Q("10.88453 mm")),
    Sketcher.Constraint("DistanceY", 25, 1, -1, 1, Q("10.88453 mm")),
    Sketcher.Constraint("DistanceX", -1, 1, 26, 1, Q("14.04716 mm")),
    Sketcher.Constraint("DistanceY", 26, 1, -1, 1, Q("11.218679 mm")),
    Sketcher.Constraint("DistanceY", 30, 1, -1, 1, Q("2.044091 mm")),
    Sketcher.Constraint("DistanceY", 31, 2, -1, 1, Q("2.000038 mm")),
    Sketcher.Constraint("DistanceY", 32, 1, -1, 1, Q("4.436681 mm")),
    Sketcher.Constraint("DistanceY", -1, 1, 33, 1, Q("10.88453 mm")),
    Sketcher.Constraint("DistanceX", 34, 1, -1, 1, Q("14.04716 mm")),
    Sketcher.Constraint("DistanceY", -1, 1, 34, 1, Q("11.218679 mm")),
    Sketcher.Constraint("DistanceY", -1, 1, 38, 1, Q("2.044091 mm")),
    Sketcher.Constraint("DistanceY", -1, 1, 39, 2, Q("2.000038 mm")),
    Sketcher.Constraint("DistanceY", -1, 1, 40, 1, Q("4.436681 mm")),
    Sketcher.Constraint("DistanceX", 41, 1, -1, 1, Q("10.88453 mm")),
    Sketcher.Constraint("DistanceX", 42, 1, -1, 1, Q("4.436681 mm")),
    Sketcher.Constraint("DistanceY", -1, 1, 42, 1, Q("19.829732 mm")),
    Sketcher.Constraint("DistanceX", 44, 2, -1, 1, Q("2.044091 mm")),
    Sketcher.Constraint("DistanceY", -1, 1, 45, 1, Q("8.867092 mm")),
    Sketcher.Constraint("DistanceX", 48, 2, -1, 1, Q("11.218679 mm")),
    Sketcher.Constraint("DistanceY", -1, 1, 48, 2, Q("14.04716 mm")),
    Sketcher.Constraint("DistanceX", -1, 1, 50, 1, Q("19.829732 mm")),
    Sketcher.Constraint("DistanceY", -1, 1, 50, 1, Q("4.436681 mm")),
    Sketcher.Constraint("DistanceY", -1, 1, 52, 2, Q("2.044091 mm")),
    Sketcher.Constraint("DistanceX", -1, 1, 53, 1, Q("8.867092 mm")),
    Sketcher.Constraint("DistanceX", -1, 1, 56, 2, Q("14.04716 mm")),
    Sketcher.Constraint("DistanceY", -1, 1, 56, 2, Q("11.218679 mm")),
    Sketcher.Constraint("DistanceY", -1, 1, 57, 1, Q("10.88453 mm")),
    Sketcher.Constraint("DistanceX", -1, 1, 58, 1, Q("2.044091 mm")),
    Sketcher.Constraint("DistanceX", -1, 1, 59, 2, Q("2.000038 mm")),
    Sketcher.Constraint("DistanceX", -1, 1, 60, 1, Q("4.436681 mm")),
    Sketcher.Constraint("DistanceX", -1, 1, 61, 1, Q("10.88453 mm")),
    Sketcher.Constraint("DistanceX", -1, 1, 62, 1, Q("11.218679 mm")),
    Sketcher.Constraint("DistanceY", -1, 1, 62, 1, Q("14.04716 mm")),
    Sketcher.Constraint("DistanceX", 2, 3, -1, 1, Q("9.813218 mm")),
    Sketcher.Constraint("DistanceX", 4, 3, -1, 1, Q("4.733883 mm")),
    Sketcher.Constraint("DistanceY", 4, 3, -1, 1, Q("10.453035 mm")),
    Sketcher.Constraint("DistanceX", 12, 3, -1, 1, Q("10.738774 mm")),
    Sketcher.Constraint("DistanceY", 12, 3, -1, 1, Q("4.044053 mm")),
    Sketcher.Constraint("DistanceX", 14, 3, -1, 1, Q("10.453035 mm")),
    Sketcher.Constraint("DistanceX", -1, 1, 20, 3, Q("4.044053 mm")),
    Sketcher.Constraint("DistanceY", 20, 3, -1, 1, Q("10.738774 mm")),
    Sketcher.Constraint("DistanceX", -1, 1, 22, 3, Q("4.733883 mm")),
    Sketcher.Constraint("DistanceX", -1, 1, 24, 3, Q("9.813218 mm")),
    Sketcher.Constraint("DistanceX", -1, 1, 28, 3, Q("10.453035 mm")),
    Sketcher.Constraint("DistanceY", 28, 3, -1, 1, Q("4.733883 mm")),
    Sketcher.Constraint("DistanceX", 34, 3, -1, 1, Q("15.470072 mm")),
    Sketcher.Constraint("DistanceX", 36, 3, -1, 1, Q("10.453035 mm")),
    Sketcher.Constraint("DistanceY", -1, 1, 36, 3, Q("4.733883 mm")),
    Sketcher.Constraint("DistanceX", 45, 3, -1, 1, Q("4.044053 mm")),
    Sketcher.Constraint("DistanceY", -1, 1, 45, 3, Q("10.738774 mm")),
    Sketcher.Constraint("DistanceX", 47, 3, -1, 1, Q("4.733883 mm")),
    Sketcher.Constraint("DistanceX", -1, 1, 53, 3, Q("10.738774 mm")),
    Sketcher.Constraint("DistanceY", -1, 1, 53, 3, Q("4.044053 mm")),
    Sketcher.Constraint("DistanceX", -1, 1, 55, 3, Q("10.453035 mm")),
    Sketcher.Constraint("DistanceX", -1, 1, 57, 3, Q("15.470072 mm")),
    Sketcher.Constraint("DistanceX", -1, 1, 58, 3, Q("4.044053 mm")),
    Sketcher.Constraint("DistanceX", -1, 1, 64, 3, Q("4.733883 mm")),
    Sketcher.Constraint("DistanceX", 4, 1, -1, 1, Q("3.908805 mm")),
    Sketcher.Constraint("DistanceX", 5, 2, -1, 1, Q("3.339207 mm")),
    Sketcher.Constraint("DistanceX", 13, 2, -1, 1, Q("8.631157 mm")),
    Sketcher.Constraint("DistanceX", -1, 1, 21, 2, Q("3.908805 mm")),
    Sketcher.Constraint("DistanceX", -1, 1, 28, 1, Q("8.631157 mm")),
    Sketcher.Constraint("DistanceX", -1, 1, 29, 2, Q("8.867092 mm")),
    Sketcher.Constraint("DistanceX", 36, 1, -1, 1, Q("8.631157 mm")),
    Sketcher.Constraint("DistanceX", 37, 2, -1, 1, Q("8.867092 mm")),
    Sketcher.Constraint("DistanceX", 46, 2, -1, 1, Q("3.908805 mm")),
    Sketcher.Constraint("DistanceX", -1, 1, 54, 2, Q("8.631157 mm")),
    Sketcher.Constraint("DistanceX", -1, 1, 64, 1, Q("3.908805 mm")),
    Sketcher.Constraint("DistanceX", -1, 1, 65, 2, Q("3.339207 mm")),
])
pad1 = doc.addObject("PartDesign::Pad", "Pad")
body.addObject(pad1)
pad1.Profile = sketch1
pad1.Length = 5

# Sketch on XY plane
sketch2 = doc.addObject("Sketcher::SketchObject", "Sketch001")
body.addObject(sketch2)
sketch2.AttachmentSupport = (doc.XY_Plane, [""])
sketch2.MapMode = "FlatFace"
sketch2.addGeometry(Part.Circle(V(0, 0, 0), V(0, 0, 1), 6.031593), False)
sketch2.addConstraint([
    Sketcher.Constraint("Coincident", 0, 3, -1, 1),
    Sketcher.Constraint("Diameter", 0, Q("12.063186 mm")),
])
pad2 = doc.addObject("PartDesign::Pad", "Pad001")
body.addObject(pad2)
pad2.Profile = sketch2
pad2.Length = 8

# Sketch on XY plane
sketch3 = doc.addObject("Sketcher::SketchObject", "Sketch002")
body.addObject(sketch3)
sketch3.AttachmentSupport = (doc.XY_Plane, [""])
sketch3.MapMode = "FlatFace"
sketch3.AttachmentOffset = App.Placement(V(0, 0, 8), App.Rotation())
sketch3.addGeometry(Part.Circle(V(0, 0, 0), V(0, 0, 1), 3), False)
sketch3.addConstraint([
    Sketcher.Constraint("Coincident", 0, 3, -1, 1),
    Sketcher.Constraint("Diameter", 0, Q("6 mm")),
])
pocket1 = doc.addObject("PartDesign::Pocket", "Pocket")
body.addObject(pocket1)
pocket1.Profile = sketch3
pocket1.Type = "ThroughAll"

# Sketch on YZ plane
sketch4 = doc.addObject("Sketcher::SketchObject", "Sketch003")
body.addObject(sketch4)
sketch4.AttachmentSupport = (doc.YZ_Plane, [""])
sketch4.MapMode = "FlatFace"
add_polygon(sketch4, [(25.457971, 0.902619), (25.4, 2.402619), (25.457971, 3.902619), (23.4, 2.402619)])  # lines 0-3
sketch4.addConstraint([
    Sketcher.Constraint("Horizontal", 0, 2, 2, 2),
    Sketcher.Constraint("Vertical", 1, 2, 3, 2),
    Sketcher.Constraint("Equal", 0, 1),
    Sketcher.Constraint("DistanceX", 2, 2, 0, 2, Q("2 mm")),
    Sketcher.Constraint("DistanceY", 3, 2, 1, 2, Q("3 mm")),
    Sketcher.Constraint("DistanceX", -1, 1, 0, 2, Q("25.4 mm")),
    Sketcher.Constraint("Distance", 0, Q("1.50112 mm")),
    Sketcher.Constraint("DistanceY", -1, 1, 0, 2, Q("2.402619 mm")),
])
groove = doc.addObject("PartDesign::Groove", "Groove")
body.addObject(groove)
groove.Profile = sketch4
groove.ReferenceAxis = (sketch4, ["V_Axis"])
groove.Angle = 360

doc.recompute()
